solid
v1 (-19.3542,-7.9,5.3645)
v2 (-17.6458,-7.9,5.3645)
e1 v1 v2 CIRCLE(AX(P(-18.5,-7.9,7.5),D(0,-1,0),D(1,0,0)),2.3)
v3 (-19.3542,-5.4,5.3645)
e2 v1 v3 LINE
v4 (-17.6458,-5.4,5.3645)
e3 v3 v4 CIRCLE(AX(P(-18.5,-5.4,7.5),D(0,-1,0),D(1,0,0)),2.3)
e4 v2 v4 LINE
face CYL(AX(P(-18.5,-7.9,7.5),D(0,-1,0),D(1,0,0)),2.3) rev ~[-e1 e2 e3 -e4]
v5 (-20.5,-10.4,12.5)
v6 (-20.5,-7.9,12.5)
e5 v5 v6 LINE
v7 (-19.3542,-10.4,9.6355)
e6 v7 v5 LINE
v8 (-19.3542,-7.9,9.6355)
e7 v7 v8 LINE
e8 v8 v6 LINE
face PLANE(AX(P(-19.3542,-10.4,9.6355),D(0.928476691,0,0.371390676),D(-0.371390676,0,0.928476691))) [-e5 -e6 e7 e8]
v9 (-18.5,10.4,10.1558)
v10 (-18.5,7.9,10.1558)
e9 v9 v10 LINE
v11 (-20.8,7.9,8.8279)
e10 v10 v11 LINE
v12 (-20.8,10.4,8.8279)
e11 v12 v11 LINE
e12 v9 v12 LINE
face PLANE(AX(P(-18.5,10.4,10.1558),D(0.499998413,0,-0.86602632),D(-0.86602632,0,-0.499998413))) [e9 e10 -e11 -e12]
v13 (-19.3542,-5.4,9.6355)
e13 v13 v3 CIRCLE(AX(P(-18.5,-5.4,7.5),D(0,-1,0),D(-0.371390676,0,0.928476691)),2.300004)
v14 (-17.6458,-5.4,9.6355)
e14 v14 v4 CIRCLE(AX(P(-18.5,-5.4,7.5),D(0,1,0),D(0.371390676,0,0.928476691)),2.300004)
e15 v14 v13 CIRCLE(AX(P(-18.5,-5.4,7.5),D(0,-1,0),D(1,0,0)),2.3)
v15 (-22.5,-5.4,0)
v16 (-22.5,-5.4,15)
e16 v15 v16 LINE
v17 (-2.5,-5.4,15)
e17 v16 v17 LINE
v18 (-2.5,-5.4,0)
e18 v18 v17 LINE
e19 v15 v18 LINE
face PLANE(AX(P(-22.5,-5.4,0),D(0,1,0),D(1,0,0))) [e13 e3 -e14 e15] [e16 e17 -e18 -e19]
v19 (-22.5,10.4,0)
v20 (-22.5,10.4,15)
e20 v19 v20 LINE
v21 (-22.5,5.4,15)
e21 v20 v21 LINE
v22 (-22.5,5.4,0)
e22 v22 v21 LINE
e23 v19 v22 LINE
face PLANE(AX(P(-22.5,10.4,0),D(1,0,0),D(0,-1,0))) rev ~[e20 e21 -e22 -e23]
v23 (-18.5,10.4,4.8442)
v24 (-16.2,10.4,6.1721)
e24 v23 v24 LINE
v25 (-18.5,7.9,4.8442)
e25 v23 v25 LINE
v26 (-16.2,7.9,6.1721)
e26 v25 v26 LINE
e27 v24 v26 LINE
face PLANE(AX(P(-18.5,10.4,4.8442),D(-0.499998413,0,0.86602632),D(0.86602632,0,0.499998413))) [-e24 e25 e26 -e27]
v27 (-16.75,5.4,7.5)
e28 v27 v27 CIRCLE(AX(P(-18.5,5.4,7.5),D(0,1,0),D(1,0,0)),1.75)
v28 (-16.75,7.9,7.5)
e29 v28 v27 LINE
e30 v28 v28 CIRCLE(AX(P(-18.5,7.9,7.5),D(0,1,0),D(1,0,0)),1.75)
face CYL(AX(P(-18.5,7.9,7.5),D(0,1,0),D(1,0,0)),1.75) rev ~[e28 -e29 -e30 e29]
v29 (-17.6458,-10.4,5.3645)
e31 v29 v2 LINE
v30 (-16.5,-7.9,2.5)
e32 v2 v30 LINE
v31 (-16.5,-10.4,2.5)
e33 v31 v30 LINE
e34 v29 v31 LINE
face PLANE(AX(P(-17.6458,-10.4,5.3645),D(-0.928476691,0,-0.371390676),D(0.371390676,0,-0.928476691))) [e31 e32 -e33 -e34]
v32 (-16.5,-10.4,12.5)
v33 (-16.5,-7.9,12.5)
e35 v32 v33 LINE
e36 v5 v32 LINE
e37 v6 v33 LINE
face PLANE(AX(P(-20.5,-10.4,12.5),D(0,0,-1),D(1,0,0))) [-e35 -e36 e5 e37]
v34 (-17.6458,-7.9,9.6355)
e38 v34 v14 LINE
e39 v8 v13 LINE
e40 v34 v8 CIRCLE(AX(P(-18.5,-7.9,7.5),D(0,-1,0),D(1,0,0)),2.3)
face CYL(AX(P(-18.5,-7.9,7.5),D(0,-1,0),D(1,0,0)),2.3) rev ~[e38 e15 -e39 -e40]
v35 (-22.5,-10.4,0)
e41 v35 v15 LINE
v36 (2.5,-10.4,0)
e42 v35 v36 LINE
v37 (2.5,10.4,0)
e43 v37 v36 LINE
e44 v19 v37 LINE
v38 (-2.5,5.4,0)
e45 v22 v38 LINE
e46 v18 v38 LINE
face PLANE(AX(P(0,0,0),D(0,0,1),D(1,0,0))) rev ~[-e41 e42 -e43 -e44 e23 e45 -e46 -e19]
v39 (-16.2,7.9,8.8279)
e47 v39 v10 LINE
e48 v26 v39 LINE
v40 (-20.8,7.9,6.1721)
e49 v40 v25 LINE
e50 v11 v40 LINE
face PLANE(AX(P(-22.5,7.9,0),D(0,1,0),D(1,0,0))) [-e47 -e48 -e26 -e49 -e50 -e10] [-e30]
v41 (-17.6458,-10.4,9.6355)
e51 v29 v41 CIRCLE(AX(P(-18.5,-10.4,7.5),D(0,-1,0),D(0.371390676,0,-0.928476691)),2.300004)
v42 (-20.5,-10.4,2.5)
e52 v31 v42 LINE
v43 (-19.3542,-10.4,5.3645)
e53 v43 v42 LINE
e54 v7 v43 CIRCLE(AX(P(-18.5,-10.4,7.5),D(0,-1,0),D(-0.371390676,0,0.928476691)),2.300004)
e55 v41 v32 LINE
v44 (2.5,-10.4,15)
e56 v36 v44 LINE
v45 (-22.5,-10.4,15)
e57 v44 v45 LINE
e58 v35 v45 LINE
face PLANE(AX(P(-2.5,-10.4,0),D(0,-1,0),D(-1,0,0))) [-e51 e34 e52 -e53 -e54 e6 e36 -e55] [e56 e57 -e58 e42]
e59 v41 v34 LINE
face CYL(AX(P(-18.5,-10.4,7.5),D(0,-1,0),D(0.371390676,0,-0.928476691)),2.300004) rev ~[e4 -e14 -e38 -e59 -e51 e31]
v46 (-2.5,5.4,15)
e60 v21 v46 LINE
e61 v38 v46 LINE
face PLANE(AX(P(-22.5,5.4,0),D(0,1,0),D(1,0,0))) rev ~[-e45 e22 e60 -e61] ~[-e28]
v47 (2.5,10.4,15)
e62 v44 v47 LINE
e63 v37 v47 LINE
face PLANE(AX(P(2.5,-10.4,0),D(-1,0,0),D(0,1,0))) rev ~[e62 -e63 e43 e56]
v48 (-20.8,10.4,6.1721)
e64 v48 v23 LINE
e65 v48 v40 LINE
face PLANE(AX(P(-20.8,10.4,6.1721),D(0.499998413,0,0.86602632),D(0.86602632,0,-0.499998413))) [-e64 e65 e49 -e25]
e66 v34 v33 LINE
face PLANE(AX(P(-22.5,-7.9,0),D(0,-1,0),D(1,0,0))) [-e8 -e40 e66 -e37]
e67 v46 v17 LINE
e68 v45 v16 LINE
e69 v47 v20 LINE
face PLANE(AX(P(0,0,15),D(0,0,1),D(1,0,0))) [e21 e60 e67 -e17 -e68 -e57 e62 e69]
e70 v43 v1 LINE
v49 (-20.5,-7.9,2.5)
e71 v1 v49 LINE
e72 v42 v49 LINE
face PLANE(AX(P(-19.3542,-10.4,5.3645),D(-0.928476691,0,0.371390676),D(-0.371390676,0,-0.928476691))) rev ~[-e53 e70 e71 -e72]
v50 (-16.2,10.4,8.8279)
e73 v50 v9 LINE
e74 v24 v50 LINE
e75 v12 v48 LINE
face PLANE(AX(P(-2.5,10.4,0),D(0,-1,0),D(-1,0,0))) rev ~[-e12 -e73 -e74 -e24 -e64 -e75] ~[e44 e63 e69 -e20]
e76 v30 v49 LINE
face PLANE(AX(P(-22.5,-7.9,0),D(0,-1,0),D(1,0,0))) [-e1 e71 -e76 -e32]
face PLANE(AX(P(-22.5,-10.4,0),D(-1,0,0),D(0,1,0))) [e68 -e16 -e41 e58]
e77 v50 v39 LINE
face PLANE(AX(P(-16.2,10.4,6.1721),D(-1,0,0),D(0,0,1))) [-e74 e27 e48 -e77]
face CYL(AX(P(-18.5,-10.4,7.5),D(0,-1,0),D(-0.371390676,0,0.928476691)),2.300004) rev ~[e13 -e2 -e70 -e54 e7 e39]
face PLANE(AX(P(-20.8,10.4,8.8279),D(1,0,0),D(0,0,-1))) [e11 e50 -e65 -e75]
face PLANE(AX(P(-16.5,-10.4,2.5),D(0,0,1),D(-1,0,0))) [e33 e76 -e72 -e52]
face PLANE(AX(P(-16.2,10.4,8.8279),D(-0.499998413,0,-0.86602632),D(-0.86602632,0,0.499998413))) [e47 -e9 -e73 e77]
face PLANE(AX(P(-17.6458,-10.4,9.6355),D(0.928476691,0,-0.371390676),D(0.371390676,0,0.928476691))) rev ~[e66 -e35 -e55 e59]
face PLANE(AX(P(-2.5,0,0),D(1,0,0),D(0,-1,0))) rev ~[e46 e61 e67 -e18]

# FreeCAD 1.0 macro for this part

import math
import FreeCAD as App
import Part
import Sketcher
Q = App.Units.Quantity

doc = App.newDocument("Part")
body = doc.addObject("PartDesign::Body", "Body")

# Sketch on XY plane
sketch1 = body.newObject("Sketcher::SketchObject", "Sketch")
sketch1.AttachmentSupport = (doc.getObject("XY_Plane"), [""])
sketch1.MapMode = "FlatFace"
sketch1.addGeometry(Part.LineSegment(App.Vector(-22, -10, 0), App.Vector(2, -10, 0)), False)
sketch1.addGeometry(Part.LineSegment(App.Vector(2, -10, 0), App.Vector(2, 10, 0)), False)
sketch1.addGeometry(Part.LineSegment(App.Vector(2, 10, 0), App.Vector(-22, 10, 0)), False)
sketch1.addGeometry(Part.LineSegment(App.Vector(-22, 10, 0), App.Vector(-22, 5, 0)), False)
sketch1.addGeometry(Part.LineSegment(App.Vector(-22, 5, 0), App.Vector(-2, 5, 0)), False)
sketch1.addGeometry(Part.LineSegment(App.Vector(-2, 5, 0), App.Vector(-2, -5, 0)), False)
sketch1.addGeometry(Part.LineSegment(App.Vector(-2, -5, 0), App.Vector(-22, -5, 0)), False)
sketch1.addGeometry(Part.LineSegment(App.Vector(-22, -5, 0), App.Vector(-22, -10, 0)), False)
sketch1.addConstraint(Sketcher.Constraint("Coincident", 0, 2, 1, 1))
sketch1.addConstraint(Sketcher.Constraint("Coincident", 1, 2, 2, 1))
sketch1.addConstraint(Sketcher.Constraint("Coincident", 2, 2, 3, 1))
sketch1.addConstraint(Sketcher.Constraint("Coincident", 3, 2, 4, 1))
sketch1.addConstraint(Sketcher.Constraint("Coincident", 4, 2, 5, 1))
sketch1.addConstraint(Sketcher.Constraint("Coincident", 5, 2, 6, 1))
sketch1.addConstraint(Sketcher.Constraint("Coincident", 6, 2, 7, 1))
sketch1.addConstraint(Sketcher.Constraint("Coincident", 7, 2, 0, 1))
sketch1.addConstraint(Sketcher.Constraint("Horizontal", 0))
sketch1.addConstraint(Sketcher.Constraint("Vertical", 1))
sketch1.addConstraint(Sketcher.Constraint("Horizontal", 2))
sketch1.addConstraint(Sketcher.Constraint("Vertical", 3))
sketch1.addConstraint(Sketcher.Constraint("Horizontal", 4))
sketch1.addConstraint(Sketcher.Constraint("Vertical", 5))
sketch1.addConstraint(Sketcher.Constraint("Horizontal", 6))
sketch1.addConstraint(Sketcher.Constraint("Vertical", 7))
sketch1.addConstraint(Sketcher.Constraint("Symmetric", 3, 2, 6, 2, -1))
sketch1.addConstraint(Sketcher.Constraint("Equal", 3, 7))
sketch1.addConstraint(Sketcher.Constraint("DistanceX", 0, 1, 0, 2, Q("25 mm")))
sketch1.addConstraint(Sketcher.Constraint("DistanceX", 4, 1, 4, 2, Q("20 mm")))
sketch1.addConstraint(Sketcher.Constraint("DistanceY", 1, 1, 1, 2, Q("20.8 mm")))
sketch1.addConstraint(Sketcher.Constraint("DistanceY", 5, 2, 5, 1, Q("10.8 mm")))
sketch1.addConstraint(Sketcher.Constraint("DistanceX", -1, 1, 0, 2, Q("2.5 mm")))
pad1 = body.newObject("PartDesign::Pad", "Pad")
pad1.Profile = sketch1
pad1.Length = 15

# Sketch on XZ plane
sketch2 = body.newObject("Sketcher::SketchObject", "Sketch001")
sketch2.AttachmentSupport = (doc.getObject("XZ_Plane"), [""])
sketch2.MapMode = "FlatFace"
sketch2.AttachmentOffset = App.Placement(App.Vector(0, 0, 10.4), App.Rotation())
sketch2.addGeometry(Part.LineSegment(App.Vector(-16.5, 12.5, 0), App.Vector(-20.5, 12.5, 0)), False)
sketch2.addGeometry(Part.LineSegment(App.Vector(-20.5, 12.5, 0), App.Vector(-19.4, 9.6, 0)), False)
sketch2.addGeometry(Part.ArcOfCircle(Part.Circle(App.Vector(-18.5, 7.5, 0), App.Vector(0, 0, 1), 2.3), math.radians(112), math.radians(248)), False)
sketch2.addGeometry(Part.LineSegment(App.Vector(-19.4, 5.4, 0), App.Vector(-20.5, 2.5, 0)), False)
sketch2.addGeometry(Part.LineSegment(App.Vector(-20.5, 2.5, 0), App.Vector(-16.5, 2.5, 0)), False)
sketch2.addGeometry(Part.LineSegment(App.Vector(-16.5, 2.5, 0), App.Vector(-17.6, 5.4, 0)), False)
sketch2.addGeometry(Part.ArcOfCircle(Part.Circle(App.Vector(-18.5, 7.5, 0), App.Vector(0, 0, 1), 2.3), math.radians(-68), math.radians(68)), False)
sketch2.addGeometry(Part.LineSegment(App.Vector(-17.6, 9.6, 0), App.Vector(-16.5, 12.5, 0)), False)
sketch2.addConstraint(Sketcher.Constraint("Coincident", 0, 2, 1, 1))
sketch2.addConstraint(Sketcher.Constraint("Coincident", 1, 2, 2, 1))
sketch2.addConstraint(Sketcher.Constraint("Coincident", 2, 2, 3, 1))
sketch2.addConstraint(Sketcher.Constraint("Coincident", 3, 2, 4, 1))
sketch2.addConstraint(Sketcher.Constraint("Coincident", 4, 2, 5, 1))
sketch2.addConstraint(Sketcher.Constraint("Coincident", 5, 2, 6, 1))
sketch2.addConstraint(Sketcher.Constraint("Coincident", 6, 2, 7, 1))
sketch2.addConstraint(Sketcher.Constraint("Coincident", 7, 2, 0, 1))
sketch2.addConstraint(Sketcher.Constraint("Horizontal", 0))
sketch2.addConstraint(Sketcher.Constraint("Horizontal", 4))
sketch2.addConstraint(Sketcher.Constraint("Coincident", 6, 3, 2, 3))
sketch2.addConstraint(Sketcher.Constraint("Equal", 2, 6))
sketch2.addConstraint(Sketcher.Constraint("Parallel", 1, 5))
sketch2.addConstraint(Sketcher.Constraint("Parallel", 3, 7))
sketch2.addConstraint(Sketcher.Constraint("Horizontal", 2, 2, 5, 2))
sketch2.addConstraint(Sketcher.Constraint("Horizontal", 1, 2, 6, 2))
sketch2.addConstraint(Sketcher.Constraint("Vertical", 1, 2, 2, 2))
sketch2.addConstraint(Sketcher.Constraint("Vertical", 0, 2, 3, 2))
sketch2.addConstraint(Sketcher.Constraint("Vertical", 4, 2, 7, 2))
sketch2.addConstraint(Sketcher.Constraint("Radius", 2, Q("2.3 mm")))
sketch2.addConstraint(Sketcher.Constraint("DistanceX", 0, 2, 0, 1, Q("4 mm")))
sketch2.addConstraint(Sketcher.Constraint("DistanceY", -1, 1, 2, 3, Q("7.5 mm")))
sketch2.addConstraint(Sketcher.Constraint("DistanceY", 2, 3, 0, 2, Q("5 mm")))
sketch2.addConstraint(Sketcher.Constraint("DistanceX", 2, 3, -1, 1, Q("18.5 mm")))
sketch2.addConstraint(Sketcher.Constraint("DistanceY", 2, 2, 1, 2, Q("4.271 mm")))
pocket1 = body.newObject("PartDesign::Pocket", "Pocket")
pocket1.Profile = sketch2
pocket1.Length = 2.5

# Sketch on XZ plane
sketch3 = body.newObject("Sketcher::SketchObject", "Sketch002")
sketch3.AttachmentSupport = (doc.getObject("XZ_Plane"), [""])
sketch3.MapMode = "FlatFace"
sketch3.AttachmentOffset = App.Placement(App.Vector(0, 0, 7.9), App.Rotation())
sketch3.addGeometry(Part.Circle(App.Vector(-18.5, 7.5, 0), App.Vector(0, 0, 1), 2.3), False)
sketch3.addConstraint(Sketcher.Constraint("Diameter", 0, Q("4.6 mm")))
sketch3.addConstraint(Sketcher.Constraint("DistanceX", 0, 3, -1, 1, Q("18.5 mm")))
sketch3.addConstraint(Sketcher.Constraint("DistanceY", -1, 1, 0, 3, Q("7.5 mm")))
pocket2 = body.newObject("PartDesign::Pocket", "Pocket001")
pocket2.Profile = sketch3
pocket2.Length = 2.5

# Sketch on XZ plane
sketch4 = body.newObject("Sketcher::SketchObject", "Sketch003")
sketch4.AttachmentSupport = (doc.getObject("XZ_Plane"), [""])
sketch4.MapMode = "FlatFace"
sketch4.AttachmentOffset = App.Placement(App.Vector(0, 0, -10.4), App.Rotation())
sketch4.addGeometry(Part.LineSegment(App.Vector(-18.5, 10.2, 0), App.Vector(-16.2, 8.8, 0)), False)
sketch4.addGeometry(Part.LineSegment(App.Vector(-16.2, 8.8, 0), App.Vector(-16.2, 6.2, 0)), False)
sketch4.addGeometry(Part.LineSegment(App.Vector(-16.2, 6.2, 0), App.Vector(-18.5, 4.8, 0)), False)
sketch4.addGeometry(Part.LineSegment(App.Vector(-18.5, 4.8, 0), App.Vector(-20.8, 6.2, 0)), False)
sketch4.addGeometry(Part.LineSegment(App.Vector(-20.8, 6.2, 0), App.Vector(-20.8, 8.8, 0)), False)
sketch4.addGeometry(Part.LineSegment(App.Vector(-20.8, 8.8, 0), App.Vector(-18.5, 10.2, 0)), False)
sketch4.addConstraint(Sketcher.Constraint("Coincident", 0, 2, 1, 1))
sketch4.addConstraint(Sketcher.Constraint("Coincident", 1, 2, 2, 1))
sketch4.addConstraint(Sketcher.Constraint("Coincident", 2, 2, 3, 1))
sketch4.addConstraint(Sketcher.Constraint("Coincident", 3, 2, 4, 1))
sketch4.addConstraint(Sketcher.Constraint("Coincident", 4, 2, 5, 1))
sketch4.addConstraint(Sketcher.Constraint("Coincident", 5, 2, 0, 1))
sketch4.addConstraint(Sketcher.Constraint("Vertical", 1))
sketch4.addConstraint(Sketcher.Constraint("Vertical", 4))
sketch4.addConstraint(Sketcher.Constraint("Parallel", 0, 3))
sketch4.addConstraint(Sketcher.Constraint("Parallel", 2, 5))
sketch4.addConstraint(Sketcher.Constraint("Horizontal", 1, 2, 3, 2))
sketch4.addConstraint(Sketcher.Constraint("Horizontal", 0, 2, 4, 2))
sketch4.addConstraint(Sketcher.Constraint("Vertical", 2, 2, 5, 2))
sketch4.addConstraint(Sketcher.Constraint("Angle", 0, Q("-30 deg")))
sketch4.addConstraint(Sketcher.Constraint("DistanceX", 0, 2, -1, 1, Q("16.2 mm")))
sketch4.addConstraint(Sketcher.Constraint("DistanceX", 2, 2, -1, 1, Q("18.5 mm")))
sketch4.addConstraint(Sketcher.Constraint("DistanceY", 1, 2, 1, 1, Q("2.6558 mm")))
sketch4.addConstraint(Sketcher.Constraint("DistanceY", -1, 1, 0, 2, Q("8.828 mm")))
pocket3 = body.newObject("PartDesign::Pocket", "Pocket002")
pocket3.Profile = sketch4
pocket3.Length = 2.5
pocket3.Reversed = True

# Sketch on XZ plane
sketch5 = body.newObject("Sketcher::SketchObject", "Sketch004")
sketch5.AttachmentSupport = (doc.getObject("XZ_Plane"), [""])
sketch5.MapMode = "FlatFace"
sketch5.AttachmentOffset = App.Placement(App.Vector(0, 0, -7.9), App.Rotation())
sketch5.addGeometry(Part.Circle(App.Vector(-18.5, 7.5, 0), App.Vector(0, 0, 1), 1.8), False)
sketch5.addConstraint(Sketcher.Constraint("Diameter", 0, Q("3.5 mm")))
sketch5.addConstraint(Sketcher.Constraint("DistanceX", 0, 3, -1, 1, Q("18.5 mm")))
sketch5.addConstraint(Sketcher.Constraint("DistanceY", -1, 1, 0, 3, Q("7.5 mm")))
pocket4 = body.newObject("PartDesign::Pocket", "Pocket003")
pocket4.Profile = sketch5
pocket4.Length = 2.5
pocket4.Reversed = True

doc.recompute()
